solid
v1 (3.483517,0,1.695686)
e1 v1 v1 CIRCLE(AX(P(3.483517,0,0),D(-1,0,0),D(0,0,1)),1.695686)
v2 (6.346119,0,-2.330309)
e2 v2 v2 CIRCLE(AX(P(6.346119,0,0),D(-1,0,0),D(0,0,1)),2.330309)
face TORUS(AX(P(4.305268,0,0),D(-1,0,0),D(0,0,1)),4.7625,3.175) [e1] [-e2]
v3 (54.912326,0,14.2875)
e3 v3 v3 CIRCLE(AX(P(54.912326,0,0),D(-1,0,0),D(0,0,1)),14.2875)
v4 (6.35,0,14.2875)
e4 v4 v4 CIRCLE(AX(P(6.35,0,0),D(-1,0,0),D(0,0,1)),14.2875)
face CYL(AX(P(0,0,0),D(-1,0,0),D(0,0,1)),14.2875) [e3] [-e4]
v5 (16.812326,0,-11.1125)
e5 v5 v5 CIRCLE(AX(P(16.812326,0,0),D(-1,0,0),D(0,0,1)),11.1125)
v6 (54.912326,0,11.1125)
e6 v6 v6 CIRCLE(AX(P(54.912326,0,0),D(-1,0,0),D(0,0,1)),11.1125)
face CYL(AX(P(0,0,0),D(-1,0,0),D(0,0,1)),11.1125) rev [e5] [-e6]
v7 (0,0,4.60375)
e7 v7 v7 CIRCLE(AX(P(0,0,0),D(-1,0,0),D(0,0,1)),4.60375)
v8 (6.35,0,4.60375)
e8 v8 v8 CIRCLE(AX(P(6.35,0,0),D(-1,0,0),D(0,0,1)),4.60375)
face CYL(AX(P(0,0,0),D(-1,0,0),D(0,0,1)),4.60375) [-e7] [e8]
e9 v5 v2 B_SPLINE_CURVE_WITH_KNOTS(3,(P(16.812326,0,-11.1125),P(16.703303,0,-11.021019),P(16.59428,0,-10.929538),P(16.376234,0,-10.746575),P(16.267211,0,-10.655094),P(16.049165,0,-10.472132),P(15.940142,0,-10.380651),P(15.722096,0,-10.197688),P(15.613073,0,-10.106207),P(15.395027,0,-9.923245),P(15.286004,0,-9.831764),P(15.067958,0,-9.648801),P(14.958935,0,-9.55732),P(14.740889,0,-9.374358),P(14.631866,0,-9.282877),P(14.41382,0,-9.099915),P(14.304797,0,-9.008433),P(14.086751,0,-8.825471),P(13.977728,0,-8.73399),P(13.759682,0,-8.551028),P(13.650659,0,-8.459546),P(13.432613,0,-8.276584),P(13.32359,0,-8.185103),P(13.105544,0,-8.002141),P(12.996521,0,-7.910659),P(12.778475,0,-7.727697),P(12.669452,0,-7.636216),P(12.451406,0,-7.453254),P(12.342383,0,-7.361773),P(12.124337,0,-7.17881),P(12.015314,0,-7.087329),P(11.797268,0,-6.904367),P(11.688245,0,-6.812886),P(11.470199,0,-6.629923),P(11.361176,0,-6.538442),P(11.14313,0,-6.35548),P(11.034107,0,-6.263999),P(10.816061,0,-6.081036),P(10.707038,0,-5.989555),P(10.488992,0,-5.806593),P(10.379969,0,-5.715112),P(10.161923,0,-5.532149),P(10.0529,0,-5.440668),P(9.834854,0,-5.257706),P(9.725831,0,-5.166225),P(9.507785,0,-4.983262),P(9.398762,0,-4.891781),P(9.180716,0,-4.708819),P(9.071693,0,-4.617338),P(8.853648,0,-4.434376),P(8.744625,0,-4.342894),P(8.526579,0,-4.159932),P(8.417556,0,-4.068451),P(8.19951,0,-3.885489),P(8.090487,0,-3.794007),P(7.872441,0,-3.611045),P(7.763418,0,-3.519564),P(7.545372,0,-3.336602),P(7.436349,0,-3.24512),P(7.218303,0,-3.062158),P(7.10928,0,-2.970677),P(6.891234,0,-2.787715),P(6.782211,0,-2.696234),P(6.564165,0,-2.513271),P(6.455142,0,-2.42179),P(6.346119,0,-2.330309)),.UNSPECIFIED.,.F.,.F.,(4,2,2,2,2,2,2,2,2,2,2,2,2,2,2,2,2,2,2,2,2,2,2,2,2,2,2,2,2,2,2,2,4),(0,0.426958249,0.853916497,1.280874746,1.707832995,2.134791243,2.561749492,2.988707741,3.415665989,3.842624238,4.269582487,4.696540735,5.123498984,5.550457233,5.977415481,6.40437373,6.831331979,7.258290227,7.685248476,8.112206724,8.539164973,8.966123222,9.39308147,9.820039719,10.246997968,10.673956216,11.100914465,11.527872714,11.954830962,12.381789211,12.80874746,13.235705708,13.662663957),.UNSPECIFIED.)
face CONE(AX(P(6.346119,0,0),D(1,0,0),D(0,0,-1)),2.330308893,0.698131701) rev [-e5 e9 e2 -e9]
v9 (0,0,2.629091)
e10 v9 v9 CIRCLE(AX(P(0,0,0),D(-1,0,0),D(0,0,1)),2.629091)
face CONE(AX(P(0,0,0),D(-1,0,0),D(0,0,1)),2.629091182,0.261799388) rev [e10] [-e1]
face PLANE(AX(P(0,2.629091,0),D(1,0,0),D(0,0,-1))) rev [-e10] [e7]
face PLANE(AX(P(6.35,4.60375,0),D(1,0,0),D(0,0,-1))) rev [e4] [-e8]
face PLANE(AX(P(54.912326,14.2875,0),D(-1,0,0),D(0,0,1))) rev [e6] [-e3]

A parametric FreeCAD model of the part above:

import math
import FreeCAD as App
import Part
import Sketcher
Q = App.Units.Quantity

doc = App.newDocument("Part")
body = doc.addObject("PartDesign::Body", "Body")

sketch1 = body.newObject("Sketcher::SketchObject", "Sketch")
sketch1.AttachmentSupport = (doc.getObject("XY_Plane"), [""])
sketch1.MapMode = "FlatFace"
sketch1.addGeometry(Part.LineSegment(App.Vector(54.9, 14.3, 0), App.Vector(6.3, 14.3, 0)), False)
sketch1.addGeometry(Part.LineSegment(App.Vector(6.3, 14.3, 0), App.Vector(6.3, 4.6, 0)), False)
sketch1.addGeometry(Part.LineSegment(App.Vector(6.3, 4.6, 0), App.Vector(0, 4.6, 0)), False)
sketch1.addGeometry(Part.LineSegment(App.Vector(0, 4.6, 0), App.Vector(0, 2.6, 0)), False)
sketch1.addGeometry(Part.LineSegment(App.Vector(0, 2.6, 0), App.Vector(3.5, 1.7, 0)), False)
sketch1.addGeometry(Part.ArcOfCircle(Part.Circle(App.Vector(4.3, 4.8, 0), App.Vector(0, 0, 1), 3.2), math.radians(-105), math.radians(-50)), False)
sketch1.addGeometry(Part.LineSegment(App.Vector(6.3, 2.3, 0), App.Vector(16.8, 11.1, 0)), False)
sketch1.addGeometry(Part.LineSegment(App.Vector(16.8, 11.1, 0), App.Vector(54.9, 11.1, 0)), False)
sketch1.addGeometry(Part.LineSegment(App.Vector(54.9, 11.1, 0), App.Vector(54.9, 14.3, 0)), False)
sketch1.addConstraint(Sketcher.Constraint("Coincident", 0, 2, 1, 1))
sketch1.addConstraint(Sketcher.Constraint("Coincident", 1, 2, 2, 1))
sketch1.addConstraint(Sketcher.Constraint("Coincident", 2, 2, 3, 1))
sketch1.addConstraint(Sketcher.Constraint("Coincident", 3, 2, 4, 1))
sketch1.addConstraint(Sketcher.Constraint("Tangent", 4, 2, 5, 1))
sketch1.addConstraint(Sketcher.Constraint("Tangent", 5, 2, 6, 1))
sketch1.addConstraint(Sketcher.Constraint("Coincident", 6, 2, 7, 1))
sketch1.addConstraint(Sketcher.Constraint("Coincident", 7, 2, 8, 1))
sketch1.addConstraint(Sketcher.Constraint("Coincident", 8, 2, 0, 1))
sketch1.addConstraint(Sketcher.Constraint("Horizontal", 0))
sketch1.addConstraint(Sketcher.Constraint("Vertical", 1))
sketch1.addConstraint(Sketcher.Constraint("Horizontal", 2))
sketch1.addConstraint(Sketcher.Constraint("Vertical", 3))
sketch1.addConstraint(Sketcher.Constraint("Horizontal", 7))
sketch1.addConstraint(Sketcher.Constraint("Vertical", 8))
sketch1.addConstraint(Sketcher.Constraint("PointOnObject", 2, 2, -2))
sketch1.addConstraint(Sketcher.Constraint("DistanceX", 7, 1, 7, 2, Q("1.5 in")))
sketch1.addConstraint(Sketcher.Constraint("Angle", 4, Q("-15 deg")))
sketch1.addConstraint(Sketcher.Constraint("Angle", 6, Q("40 deg")))
sketch1.addConstraint(Sketcher.Constraint("Radius", 5, Q("0.125 in")))
sketch1.addConstraint(Sketcher.Constraint("DistanceX", 2, 2, 2, 1, Q("0.25 in")))
sketch1.addConstraint(Sketcher.Constraint("DistanceY", 8, 1, 8, 2, Q("0.125 in")))
sketch1.addConstraint(Sketcher.Constraint("DistanceY", 5, 3, 6, 2, Q("0.25 in")))
sketch1.addConstraint(Sketcher.Constraint("DistanceY", -1, 1, 5, 3, Q("0.1875 in")))
sketch1.addConstraint(Sketcher.Constraint("DistanceY", 1, 2, 1, 1, Q("9.68375 mm")))
sketch1.addConstraint(Sketcher.Constraint("DistanceY", 3, 2, 3, 1, Q("1.974659 mm")))
revolution = body.newObject("PartDesign::Revolution", "Revolution")
revolution.Profile = sketch1
revolution.ReferenceAxis = (sketch1, ["H_Axis"])
revolution.Angle = 360

doc.recompute()
